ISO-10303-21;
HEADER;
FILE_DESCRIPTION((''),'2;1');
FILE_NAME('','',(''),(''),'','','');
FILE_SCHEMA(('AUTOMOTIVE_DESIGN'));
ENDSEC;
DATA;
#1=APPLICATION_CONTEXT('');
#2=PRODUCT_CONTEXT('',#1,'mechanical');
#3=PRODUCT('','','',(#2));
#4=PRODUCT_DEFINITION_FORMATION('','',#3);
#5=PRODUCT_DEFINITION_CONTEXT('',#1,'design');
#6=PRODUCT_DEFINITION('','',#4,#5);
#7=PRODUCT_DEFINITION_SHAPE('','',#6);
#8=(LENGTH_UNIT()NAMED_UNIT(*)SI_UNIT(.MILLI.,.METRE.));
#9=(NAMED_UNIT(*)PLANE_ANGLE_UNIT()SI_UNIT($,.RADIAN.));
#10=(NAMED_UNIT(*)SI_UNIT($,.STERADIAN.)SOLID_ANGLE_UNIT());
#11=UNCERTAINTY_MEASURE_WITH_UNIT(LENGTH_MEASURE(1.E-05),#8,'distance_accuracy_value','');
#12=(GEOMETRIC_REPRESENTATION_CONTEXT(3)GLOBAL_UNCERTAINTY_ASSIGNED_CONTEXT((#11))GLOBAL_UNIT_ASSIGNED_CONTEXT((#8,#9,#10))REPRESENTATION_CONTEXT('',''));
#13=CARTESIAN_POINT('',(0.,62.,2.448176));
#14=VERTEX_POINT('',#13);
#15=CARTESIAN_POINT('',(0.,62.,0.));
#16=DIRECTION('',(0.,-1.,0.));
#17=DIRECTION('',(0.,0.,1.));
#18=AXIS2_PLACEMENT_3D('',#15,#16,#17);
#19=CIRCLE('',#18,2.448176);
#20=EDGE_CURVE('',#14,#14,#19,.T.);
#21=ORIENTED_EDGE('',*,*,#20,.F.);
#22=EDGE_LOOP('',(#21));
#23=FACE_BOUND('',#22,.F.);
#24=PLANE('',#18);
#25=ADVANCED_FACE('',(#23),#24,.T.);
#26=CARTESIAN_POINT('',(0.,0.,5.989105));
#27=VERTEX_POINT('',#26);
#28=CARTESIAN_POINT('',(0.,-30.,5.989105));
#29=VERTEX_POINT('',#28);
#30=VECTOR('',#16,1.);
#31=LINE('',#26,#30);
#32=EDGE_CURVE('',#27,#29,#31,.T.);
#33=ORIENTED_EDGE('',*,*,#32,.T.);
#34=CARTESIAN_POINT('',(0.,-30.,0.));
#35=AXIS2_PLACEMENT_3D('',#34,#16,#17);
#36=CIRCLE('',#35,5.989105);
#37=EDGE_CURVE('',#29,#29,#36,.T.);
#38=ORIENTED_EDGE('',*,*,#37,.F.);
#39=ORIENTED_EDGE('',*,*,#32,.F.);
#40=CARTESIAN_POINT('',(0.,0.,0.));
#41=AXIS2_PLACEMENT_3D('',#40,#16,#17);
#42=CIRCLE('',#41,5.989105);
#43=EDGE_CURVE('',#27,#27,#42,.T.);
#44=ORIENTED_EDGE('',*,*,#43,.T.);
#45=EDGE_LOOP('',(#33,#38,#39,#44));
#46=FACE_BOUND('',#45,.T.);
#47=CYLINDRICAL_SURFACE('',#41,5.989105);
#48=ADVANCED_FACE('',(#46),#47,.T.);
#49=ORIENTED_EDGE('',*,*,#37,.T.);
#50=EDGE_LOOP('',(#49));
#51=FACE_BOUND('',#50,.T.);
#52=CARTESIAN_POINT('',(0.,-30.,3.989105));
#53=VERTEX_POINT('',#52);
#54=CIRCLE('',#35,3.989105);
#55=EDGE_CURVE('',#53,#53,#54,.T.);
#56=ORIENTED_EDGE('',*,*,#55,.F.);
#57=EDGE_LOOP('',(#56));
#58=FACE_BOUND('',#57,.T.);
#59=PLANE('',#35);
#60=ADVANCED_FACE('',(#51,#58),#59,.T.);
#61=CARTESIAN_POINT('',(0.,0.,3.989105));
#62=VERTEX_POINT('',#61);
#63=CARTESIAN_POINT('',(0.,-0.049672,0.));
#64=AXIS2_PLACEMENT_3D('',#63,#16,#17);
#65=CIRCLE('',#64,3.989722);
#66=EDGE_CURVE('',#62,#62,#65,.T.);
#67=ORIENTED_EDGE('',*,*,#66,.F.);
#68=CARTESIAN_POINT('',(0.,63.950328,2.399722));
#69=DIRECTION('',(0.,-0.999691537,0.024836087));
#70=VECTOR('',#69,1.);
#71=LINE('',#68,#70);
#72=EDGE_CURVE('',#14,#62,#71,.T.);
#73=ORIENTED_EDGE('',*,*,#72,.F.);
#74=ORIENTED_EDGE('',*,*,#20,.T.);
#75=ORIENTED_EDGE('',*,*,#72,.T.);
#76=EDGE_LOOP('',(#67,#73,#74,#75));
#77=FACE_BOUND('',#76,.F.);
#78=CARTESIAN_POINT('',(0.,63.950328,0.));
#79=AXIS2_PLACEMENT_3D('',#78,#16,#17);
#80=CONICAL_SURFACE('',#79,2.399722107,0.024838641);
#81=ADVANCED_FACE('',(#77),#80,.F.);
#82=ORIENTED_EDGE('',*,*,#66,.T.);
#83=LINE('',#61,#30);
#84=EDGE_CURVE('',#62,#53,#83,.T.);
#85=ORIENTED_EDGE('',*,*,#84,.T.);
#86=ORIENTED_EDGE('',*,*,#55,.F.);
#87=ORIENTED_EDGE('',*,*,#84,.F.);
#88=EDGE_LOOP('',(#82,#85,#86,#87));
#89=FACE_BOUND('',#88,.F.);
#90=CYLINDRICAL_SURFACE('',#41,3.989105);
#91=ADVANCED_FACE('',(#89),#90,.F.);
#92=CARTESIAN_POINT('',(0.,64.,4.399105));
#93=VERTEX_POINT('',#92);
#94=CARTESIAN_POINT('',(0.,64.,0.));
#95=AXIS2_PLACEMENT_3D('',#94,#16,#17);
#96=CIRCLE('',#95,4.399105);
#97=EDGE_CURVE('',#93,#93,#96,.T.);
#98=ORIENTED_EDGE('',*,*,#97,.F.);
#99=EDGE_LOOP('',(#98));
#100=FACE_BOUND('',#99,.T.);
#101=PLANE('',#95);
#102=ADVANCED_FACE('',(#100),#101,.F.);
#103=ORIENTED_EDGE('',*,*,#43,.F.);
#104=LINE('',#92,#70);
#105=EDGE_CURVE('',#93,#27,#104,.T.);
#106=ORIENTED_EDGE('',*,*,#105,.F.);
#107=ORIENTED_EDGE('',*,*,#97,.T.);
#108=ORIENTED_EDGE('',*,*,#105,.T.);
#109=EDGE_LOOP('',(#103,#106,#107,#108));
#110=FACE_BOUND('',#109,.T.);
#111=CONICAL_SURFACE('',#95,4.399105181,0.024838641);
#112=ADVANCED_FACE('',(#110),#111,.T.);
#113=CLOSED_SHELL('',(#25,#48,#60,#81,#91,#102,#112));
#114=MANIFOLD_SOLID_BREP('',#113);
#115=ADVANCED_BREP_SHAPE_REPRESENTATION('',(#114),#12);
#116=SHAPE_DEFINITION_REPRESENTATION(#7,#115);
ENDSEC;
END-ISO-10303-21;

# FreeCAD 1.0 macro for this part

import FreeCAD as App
import Part
import Sketcher
from FreeCAD import Vector
Q = App.Units.Quantity


def faces_at(feature, points):
    """Names of the faces that lie closest to the given points."""
    faces = feature.Shape.Faces
    near = lambda p: min(range(len(faces)), key=lambda i: faces[i].distToShape(Part.Vertex(*p))[0])
    return sorted({f"Face{near(p) + 1}" for p in points})


def add_polygon(sketch, points):
    """Adds a closed chain of lines whose ends are joined by coincident constraints."""
    first, n = sketch.GeometryCount, len(points)
    for a, b in zip(points, points[1:] + points[:1]):
        sketch.addGeometry(Part.LineSegment(App.Vector(*a, 0), App.Vector(*b, 0)), False)
    for i in range(n):
        sketch.addConstraint(Sketcher.Constraint("Coincident", first + i, 2, first + (i + 1) % n, 1))

doc = App.newDocument("Part")
body = doc.addObject("PartDesign::Body", "Body")

# Sketch on YZ plane
sketch1 = doc.addObject("Sketcher::SketchObject", "Sketch")
body.addObject(sketch1)
sketch1.AttachmentSupport = (doc.YZ_Plane, [""])
sketch1.MapMode = "FlatFace"
add_polygon(sketch1, [(64, 4.4), (0, 6), (-30, 6), (-30, 0), (64, 0)])  # lines 0-4
sketch1.addConstraint([
    Sketcher.Constraint("Horizontal", 1),
    Sketcher.Constraint("Vertical", 2),
    Sketcher.Constraint("Horizontal", 3),
    Sketcher.Constraint("Vertical", 4),
    Sketcher.Constraint("PointOnObject", 0, 2, -2),
    Sketcher.Constraint("PointOnObject", 2, 2, -1),
    Sketcher.Constraint("DistanceX", 1, 2, 1, 1, Q("30 mm")),
    Sketcher.Constraint("DistanceX", 3, 1, 3, 2, Q("94 mm")),
    Sketcher.Constraint("DistanceY", 4, 2, 0, 2, Q("1.59 mm")),
    Sketcher.Constraint("DistanceY", 2, 2, 2, 1, Q("5.989105 mm")),
])
revolution = doc.addObject("PartDesign::Revolution", "Revolution")
body.addObject(revolution)
revolution.Profile = sketch1
revolution.ReferenceAxis = (sketch1, ["H_Axis"])
revolution.Angle = 360
doc.recompute()

thickness = doc.addObject("PartDesign::Thickness", "Thickness")
body.addObject(thickness)
thickness.Base = (revolution, faces_at(revolution, [(0, -30, 0)]))
thickness.Value = 2
thickness.Reversed = True
thickness.Join = "Intersection"

doc.recompute()
